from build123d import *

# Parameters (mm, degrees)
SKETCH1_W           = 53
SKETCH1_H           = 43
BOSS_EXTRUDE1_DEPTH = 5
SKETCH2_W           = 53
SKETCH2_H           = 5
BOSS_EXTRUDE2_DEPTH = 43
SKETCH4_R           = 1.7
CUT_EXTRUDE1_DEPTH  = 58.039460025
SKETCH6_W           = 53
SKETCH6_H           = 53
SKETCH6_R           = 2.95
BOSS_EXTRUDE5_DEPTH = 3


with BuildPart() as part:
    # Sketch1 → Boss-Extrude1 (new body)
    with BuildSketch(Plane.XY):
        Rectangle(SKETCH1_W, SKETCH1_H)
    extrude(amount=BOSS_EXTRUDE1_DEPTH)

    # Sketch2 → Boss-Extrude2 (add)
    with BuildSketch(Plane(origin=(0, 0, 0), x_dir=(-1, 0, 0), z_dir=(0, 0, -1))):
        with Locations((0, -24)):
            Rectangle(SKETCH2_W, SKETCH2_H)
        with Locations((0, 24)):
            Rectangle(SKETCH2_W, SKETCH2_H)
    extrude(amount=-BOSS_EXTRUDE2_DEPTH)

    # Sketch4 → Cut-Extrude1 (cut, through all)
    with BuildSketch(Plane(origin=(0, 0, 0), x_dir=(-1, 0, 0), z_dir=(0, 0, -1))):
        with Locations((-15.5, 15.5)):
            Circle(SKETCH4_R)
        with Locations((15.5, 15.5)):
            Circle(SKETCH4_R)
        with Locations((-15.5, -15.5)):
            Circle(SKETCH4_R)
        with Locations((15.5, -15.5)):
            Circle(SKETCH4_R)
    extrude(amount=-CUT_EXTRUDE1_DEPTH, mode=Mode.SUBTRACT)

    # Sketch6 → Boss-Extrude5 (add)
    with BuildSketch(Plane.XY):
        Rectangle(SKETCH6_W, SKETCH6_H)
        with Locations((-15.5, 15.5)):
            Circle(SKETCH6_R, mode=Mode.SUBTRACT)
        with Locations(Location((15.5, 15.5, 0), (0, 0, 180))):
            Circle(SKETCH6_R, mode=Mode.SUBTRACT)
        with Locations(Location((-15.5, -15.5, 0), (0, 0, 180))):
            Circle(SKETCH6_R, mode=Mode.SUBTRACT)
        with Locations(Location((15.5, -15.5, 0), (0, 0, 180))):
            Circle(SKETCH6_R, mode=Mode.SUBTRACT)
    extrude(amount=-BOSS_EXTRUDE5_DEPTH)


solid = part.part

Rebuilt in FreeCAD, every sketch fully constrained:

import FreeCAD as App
import Part
import Sketcher
from FreeCAD import Vector
Q = App.Units.Quantity

doc = App.newDocument("Part")
body = doc.addObject("PartDesign::Body", "Body")

sketch1 = doc.addObject("Sketcher::SketchObject", "Sketch")
body.addObject(sketch1)
sketch1.AttachmentSupport = (doc.XY_Plane, [""])
sketch1.MapMode = "FlatFace"
sketch1.addGeometry([
    Part.LineSegment(Vector(-26, 22, 0), Vector(-26, -22, 0)),
    Part.LineSegment(Vector(-26, -22, 0), Vector(26, -22, 0)),
    Part.LineSegment(Vector(26, -22, 0), Vector(26, 22, 0)),
    Part.LineSegment(Vector(26, 22, 0), Vector(-26, 22, 0)),
], False)
sketch1.addConstraint([
    Sketcher.Constraint("Coincident", 0, 2, 1, 1),
    Sketcher.Constraint("Coincident", 1, 2, 2, 1),
    Sketcher.Constraint("Coincident", 2, 2, 3, 1),
    Sketcher.Constraint("Coincident", 3, 2, 0, 1),
    Sketcher.Constraint("Vertical", 0),
    Sketcher.Constraint("Horizontal", 1),
    Sketcher.Constraint("Vertical", 2),
    Sketcher.Constraint("Horizontal", 3),
    Sketcher.Constraint("Symmetric", 0, 2, 2, 2, -1, 1),
    Sketcher.Constraint("DistanceX", 1, 1, 1, 2, Q("53 mm")),
    Sketcher.Constraint("DistanceY", 0, 2, 0, 1, Q("43 mm")),
])
pad1 = doc.addObject("PartDesign::Pad", "Pad")
body.addObject(pad1)
pad1.Profile = sketch1
pad1.Length = 5

sketch2 = doc.addObject("Sketcher::SketchObject", "Sketch001")
body.addObject(sketch2)
sketch2.AttachmentSupport = (doc.XY_Plane, [""])
sketch2.MapMode = "FlatFace"
sketch2.addGeometry([
    Part.LineSegment(Vector(26, -22, 0), Vector(26, -26, 0)),
    Part.LineSegment(Vector(26, -26, 0), Vector(-26, -26, 0)),
    Part.LineSegment(Vector(-26, -26, 0), Vector(-26, -22, 0)),
    Part.LineSegment(Vector(-26, -22, 0), Vector(26, -22, 0)),
    Part.LineSegment(Vector(26, 26, 0), Vector(26, 22, 0)),
    Part.LineSegment(Vector(26, 22, 0), Vector(-26, 22, 0)),
    Part.LineSegment(Vector(-26, 22, 0), Vector(-26, 26, 0)),
    Part.LineSegment(Vector(-26, 26, 0), Vector(26, 26, 0)),
], False)
sketch2.addConstraint([
    Sketcher.Constraint("Coincident", 0, 2, 1, 1),
    Sketcher.Constraint("Coincident", 1, 2, 2, 1),
    Sketcher.Constraint("Coincident", 2, 2, 3, 1),
    Sketcher.Constraint("Coincident", 3, 2, 0, 1),
    Sketcher.Constraint("Coincident", 4, 2, 5, 1),
    Sketcher.Constraint("Coincident", 5, 2, 6, 1),
    Sketcher.Constraint("Coincident", 6, 2, 7, 1),
    Sketcher.Constraint("Coincident", 7, 2, 4, 1),
    Sketcher.Constraint("Vertical", 0),
    Sketcher.Constraint("Horizontal", 1),
    Sketcher.Constraint("Vertical", 2),
    Sketcher.Constraint("Horizontal", 3),
    Sketcher.Constraint("Vertical", 4),
    Sketcher.Constraint("Horizontal", 5),
    Sketcher.Constraint("Vertical", 6),
    Sketcher.Constraint("Horizontal", 7),
    Sketcher.Constraint("Symmetric", 2, 2, 4, 2, -1, 1),
    Sketcher.Constraint("Symmetric", 0, 2, 6, 2, -1, 1),
    Sketcher.Constraint("Vertical", 3, 2, 4, 2),
    Sketcher.Constraint("DistanceX", 1, 2, 1, 1, Q("53 mm")),
    Sketcher.Constraint("DistanceY", 0, 2, 0, 1, Q("5 mm")),
    Sketcher.Constraint("DistanceY", 3, 2, 4, 2, Q("43 mm")),
])
pad2 = doc.addObject("PartDesign::Pad", "Pad001")
body.addObject(pad2)
pad2.Profile = sketch2
pad2.Length = 43

sketch3 = doc.addObject("Sketcher::SketchObject", "Sketch002")
body.addObject(sketch3)
sketch3.AttachmentSupport = (doc.XY_Plane, [""])
sketch3.MapMode = "FlatFace"
sketch3.addGeometry([
    Part.Circle(Vector(15.5, 15.5, 0), Vector(0, 0, 1), 1.7),
    Part.Circle(Vector(-15.5, 15.5, 0), Vector(0, 0, 1), 1.7),
    Part.Circle(Vector(15.5, -15.5, 0), Vector(0, 0, 1), 1.7),
    Part.Circle(Vector(-15.5, -15.5, 0), Vector(0, 0, 1), 1.7),
], False)
sketch3.addConstraint([
    Sketcher.Constraint("Equal", 0, 1),
    Sketcher.Constraint("Equal", 1, 2),
    Sketcher.Constraint("Equal", 2, 3),
    Sketcher.Constraint("Symmetric", 1, 3, 2, 3, -1, 1),
    Sketcher.Constraint("Symmetric", 0, 3, 3, 3, -1, 1),
    Sketcher.Constraint("Symmetric", 0, 3, 1, 3, -2),
    Sketcher.Constraint("Diameter", 0, Q("3.4 mm")),
    Sketcher.Constraint("DistanceX", 1, 3, 0, 3, Q("31 mm")),
    Sketcher.Constraint("DistanceY", 2, 3, 0, 3, Q("31 mm")),
])
pocket1 = doc.addObject("PartDesign::Pocket", "Pocket")
body.addObject(pocket1)
pocket1.Profile = sketch3
pocket1.Type = "ThroughAll"
pocket1.Reversed = True

sketch4 = doc.addObject("Sketcher::SketchObject", "Sketch003")
body.addObject(sketch4)
sketch4.AttachmentSupport = (doc.XY_Plane, [""])
sketch4.MapMode = "FlatFace"
sketch4.addGeometry([
    Part.LineSegment(Vector(-26.5, 26.5, 0), Vector(-26.5, -26.5, 0)),
    Part.LineSegment(Vector(-26.5, -26.5, 0), Vector(26.5, -26.5, 0)),
    Part.LineSegment(Vector(26.5, -26.5, 0), Vector(26.5, 26.5, 0)),
    Part.LineSegment(Vector(26.5, 26.5, 0), Vector(-26.5, 26.5, 0)),
    Part.Circle(Vector(-15.5, -15.5, 0), Vector(0, 0, 1), 3),
    Part.Circle(Vector(15.5, -15.5, 0), Vector(0, 0, 1), 3),
    Part.Circle(Vector(-15.5, 15.5, 0), Vector(0, 0, 1), 3),
    Part.Circle(Vector(15.5, 15.5, 0), Vector(0, 0, 1), 3),
], False)
sketch4.addConstraint([
    Sketcher.Constraint("Coincident", 0, 2, 1, 1),
    Sketcher.Constraint("Coincident", 1, 2, 2, 1),
    Sketcher.Constraint("Coincident", 2, 2, 3, 1),
    Sketcher.Constraint("Coincident", 3, 2, 0, 1),
    Sketcher.Constraint("Vertical", 0),
    Sketcher.Constraint("Horizontal", 1),
    Sketcher.Constraint("Vertical", 2),
    Sketcher.Constraint("Horizontal", 3),
    Sketcher.Constraint("Equal", 4, 5),
    Sketcher.Constraint("Equal", 5, 6),
    Sketcher.Constraint("Equal", 6, 7),
    Sketcher.Constraint("Symmetric", 5, 3, 6, 3, -1, 1),
    Sketcher.Constraint("Symmetric", 4, 3, 7, 3, -1, 1),
    Sketcher.Constraint("Symmetric", 0, 2, 2, 2, -1, 1),
    Sketcher.Constraint("Symmetric", 4, 3, 5, 3, -2),
    Sketcher.Constraint("Equal", 3, 0),
    Sketcher.Constraint("Diameter", 4, Q("5.9 mm")),
    Sketcher.Constraint("DistanceX", 1, 1, 1, 2, Q("53 mm")),
    Sketcher.Constraint("DistanceX", 4, 3, 5, 3, Q("31 mm")),
    Sketcher.Constraint("DistanceY", 4, 3, 6, 3, Q("31 mm")),
])
pad3 = doc.addObject("PartDesign::Pad", "Pad002")
body.addObject(pad3)
pad3.Profile = sketch4
pad3.Length = 3
pad3.Reversed = True

doc.recompute()
